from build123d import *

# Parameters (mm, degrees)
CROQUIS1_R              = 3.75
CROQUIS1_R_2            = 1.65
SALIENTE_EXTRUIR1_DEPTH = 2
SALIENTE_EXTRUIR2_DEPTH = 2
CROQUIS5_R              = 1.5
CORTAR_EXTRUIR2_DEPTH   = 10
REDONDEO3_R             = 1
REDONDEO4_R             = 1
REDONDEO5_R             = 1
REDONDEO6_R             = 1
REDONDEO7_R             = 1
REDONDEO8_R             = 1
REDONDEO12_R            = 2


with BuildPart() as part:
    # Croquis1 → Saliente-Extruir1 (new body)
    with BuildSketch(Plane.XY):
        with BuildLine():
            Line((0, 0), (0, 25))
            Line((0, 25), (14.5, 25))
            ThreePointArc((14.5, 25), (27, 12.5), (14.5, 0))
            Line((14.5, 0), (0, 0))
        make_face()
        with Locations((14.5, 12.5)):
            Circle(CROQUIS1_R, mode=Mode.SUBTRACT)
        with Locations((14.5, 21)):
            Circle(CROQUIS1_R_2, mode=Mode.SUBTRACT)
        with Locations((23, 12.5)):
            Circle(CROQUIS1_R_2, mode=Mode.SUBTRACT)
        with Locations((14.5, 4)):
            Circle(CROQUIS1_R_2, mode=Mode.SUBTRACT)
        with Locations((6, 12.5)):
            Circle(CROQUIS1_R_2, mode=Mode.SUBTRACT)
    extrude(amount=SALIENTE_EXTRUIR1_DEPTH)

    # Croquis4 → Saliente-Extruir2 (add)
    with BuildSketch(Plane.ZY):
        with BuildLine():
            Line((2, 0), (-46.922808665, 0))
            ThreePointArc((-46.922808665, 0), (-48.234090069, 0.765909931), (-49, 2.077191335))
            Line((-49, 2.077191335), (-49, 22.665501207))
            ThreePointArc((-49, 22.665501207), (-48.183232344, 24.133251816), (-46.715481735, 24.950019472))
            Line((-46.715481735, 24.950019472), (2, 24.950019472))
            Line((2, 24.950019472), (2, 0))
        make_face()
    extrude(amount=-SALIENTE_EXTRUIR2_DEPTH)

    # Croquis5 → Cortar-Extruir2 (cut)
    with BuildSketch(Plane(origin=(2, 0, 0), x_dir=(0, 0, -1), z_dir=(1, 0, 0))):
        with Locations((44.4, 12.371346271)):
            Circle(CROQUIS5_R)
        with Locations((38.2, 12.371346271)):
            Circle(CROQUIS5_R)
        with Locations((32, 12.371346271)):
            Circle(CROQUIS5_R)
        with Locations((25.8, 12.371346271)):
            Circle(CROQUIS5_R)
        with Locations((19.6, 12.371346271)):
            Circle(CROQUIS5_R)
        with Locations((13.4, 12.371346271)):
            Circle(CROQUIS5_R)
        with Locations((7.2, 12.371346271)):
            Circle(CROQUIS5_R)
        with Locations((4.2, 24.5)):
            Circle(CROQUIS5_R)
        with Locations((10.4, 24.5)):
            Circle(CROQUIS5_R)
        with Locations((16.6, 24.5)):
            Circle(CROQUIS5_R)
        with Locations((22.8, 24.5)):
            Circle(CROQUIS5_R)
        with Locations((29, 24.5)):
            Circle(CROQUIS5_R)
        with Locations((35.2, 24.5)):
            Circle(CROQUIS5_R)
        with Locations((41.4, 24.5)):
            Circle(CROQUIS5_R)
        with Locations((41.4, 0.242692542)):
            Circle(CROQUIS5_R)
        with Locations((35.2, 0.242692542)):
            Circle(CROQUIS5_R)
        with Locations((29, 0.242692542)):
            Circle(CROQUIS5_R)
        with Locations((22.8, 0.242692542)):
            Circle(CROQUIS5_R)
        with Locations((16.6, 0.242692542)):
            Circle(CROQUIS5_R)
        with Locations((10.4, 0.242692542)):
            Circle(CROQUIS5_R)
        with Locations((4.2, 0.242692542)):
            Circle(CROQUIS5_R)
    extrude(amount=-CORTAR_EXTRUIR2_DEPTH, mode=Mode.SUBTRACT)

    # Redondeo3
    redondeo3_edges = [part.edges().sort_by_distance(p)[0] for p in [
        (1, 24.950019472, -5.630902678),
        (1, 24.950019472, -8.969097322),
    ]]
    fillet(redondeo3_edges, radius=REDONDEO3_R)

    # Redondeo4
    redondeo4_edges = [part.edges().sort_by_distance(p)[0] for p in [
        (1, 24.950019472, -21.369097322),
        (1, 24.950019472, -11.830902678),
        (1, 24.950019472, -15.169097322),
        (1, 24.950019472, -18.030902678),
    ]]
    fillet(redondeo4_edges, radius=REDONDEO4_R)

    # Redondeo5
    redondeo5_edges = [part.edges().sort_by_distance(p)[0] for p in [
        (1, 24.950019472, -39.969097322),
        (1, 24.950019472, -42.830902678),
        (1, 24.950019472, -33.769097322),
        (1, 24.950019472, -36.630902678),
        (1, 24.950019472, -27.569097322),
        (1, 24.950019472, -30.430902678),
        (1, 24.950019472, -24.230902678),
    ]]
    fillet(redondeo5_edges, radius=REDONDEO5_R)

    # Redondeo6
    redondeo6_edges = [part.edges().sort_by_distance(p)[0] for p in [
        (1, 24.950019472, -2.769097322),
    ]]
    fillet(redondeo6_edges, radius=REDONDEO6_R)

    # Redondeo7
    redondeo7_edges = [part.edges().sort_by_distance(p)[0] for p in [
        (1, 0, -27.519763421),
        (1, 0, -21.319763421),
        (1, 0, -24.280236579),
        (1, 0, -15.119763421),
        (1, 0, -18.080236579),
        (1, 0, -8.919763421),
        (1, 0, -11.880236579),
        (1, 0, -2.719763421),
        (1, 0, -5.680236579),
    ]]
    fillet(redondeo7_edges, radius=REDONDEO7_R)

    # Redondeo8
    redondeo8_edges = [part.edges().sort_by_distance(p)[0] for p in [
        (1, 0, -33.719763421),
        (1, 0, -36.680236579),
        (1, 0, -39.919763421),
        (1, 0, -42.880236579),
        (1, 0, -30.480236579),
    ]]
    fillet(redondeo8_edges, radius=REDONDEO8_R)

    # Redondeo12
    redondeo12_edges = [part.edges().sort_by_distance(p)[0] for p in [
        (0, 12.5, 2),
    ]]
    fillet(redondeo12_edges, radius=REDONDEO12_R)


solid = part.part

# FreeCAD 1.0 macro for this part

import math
import FreeCAD as App
import Part
import Sketcher


def edges_at(feature, points):
    """Names of the edges that pass closest to the given points."""
    edges = feature.Shape.Edges
    near = lambda p: min(range(len(edges)), key=lambda i: edges[i].distToShape(Part.Vertex(*p))[0])
    return sorted({f"Edge{near(p) + 1}" for p in points})

doc = App.newDocument("Part")
body = doc.addObject("PartDesign::Body", "Body")

# Sketch on XY plane
sketch1 = body.newObject("Sketcher::SketchObject", "Sketch")
sketch1.AttachmentSupport = (doc.getObject("XY_Plane"), [""])
sketch1.MapMode = "FlatFace"
sketch1.addGeometry([
    Part.LineSegment(App.Vector(0, 25, 0), App.Vector(0, 0, 0)),  # 0
    Part.LineSegment(App.Vector(0, 0, 0), App.Vector(14.5, 0, 0)),  # 1
    Part.ArcOfCircle(Part.Circle(App.Vector(14.5, 12.5, 0), App.Vector(0, 0, 1), 12.5), math.radians(-90), math.radians(90)),  # 2
    Part.LineSegment(App.Vector(14.5, 25, 0), App.Vector(0, 25, 0)),  # 3
    Part.Circle(App.Vector(14.5, 4, 0), App.Vector(0, 0, 1), 1.6),  # 4
    Part.Circle(App.Vector(23, 12.5, 0), App.Vector(0, 0, 1), 1.6),  # 5
    Part.Circle(App.Vector(14.5, 12.5, 0), App.Vector(0, 0, 1), 3.8),  # 6
    Part.Circle(App.Vector(6, 12.5, 0), App.Vector(0, 0, 1), 1.6),  # 7
    Part.Circle(App.Vector(14.5, 21, 0), App.Vector(0, 0, 1), 1.6),  # 8
], False)
sketch1.addConstraint([
    Sketcher.Constraint("Coincident", 0, 2, 1, 1),
    Sketcher.Constraint("Tangent", 1, 2, 2, 1),
    Sketcher.Constraint("Tangent", 2, 2, 3, 1),
    Sketcher.Constraint("Coincident", 3, 2, 0, 1),
    Sketcher.Constraint("Vertical", 0),
    Sketcher.Constraint("Horizontal", 1),
    Sketcher.Constraint("Horizontal", 3),
    Sketcher.Constraint("Coincident", 0, 2, -1, 1),
    Sketcher.Constraint("Coincident", 6, 3, 2, 3),
    Sketcher.Constraint("Equal", 4, 5),
    Sketcher.Constraint("Equal", 5, 7),
    Sketcher.Constraint("Equal", 7, 8),
    Sketcher.Constraint("Horizontal", 2, 3, 5, 3),
    Sketcher.Constraint("Horizontal", 6, 3, 7, 3),
    Sketcher.Constraint("Vertical", 2, 3, 4, 3),
    Sketcher.Constraint("Vertical", 6, 3, 8, 3),
    Sketcher.Constraint("Diameter", 4, 3.3),
    Sketcher.Constraint("Diameter", 6, 7.5),
    Sketcher.Constraint("Radius", 2, 12.5),
    Sketcher.Constraint("DistanceX", 1, 1, 1, 2, 14.5),
    Sketcher.Constraint("DistanceY", -1, 1, 4, 3, 4.0),
    Sketcher.Constraint("DistanceX", -1, 1, 5, 3, 23.0),
    Sketcher.Constraint("DistanceX", -1, 1, 7, 3, 6.0),
    Sketcher.Constraint("DistanceY", -1, 1, 8, 3, 21.0),
])
pad1 = body.newObject("PartDesign::Pad", "Pad")
pad1.Profile = sketch1
pad1.Length = 2

# Sketch on YZ plane
sketch2 = body.newObject("Sketcher::SketchObject", "Sketch001")
sketch2.AttachmentSupport = (doc.getObject("YZ_Plane"), [""])
sketch2.MapMode = "FlatFace"
sketch2.addGeometry([
    Part.LineSegment(App.Vector(0, -46.9, 0), App.Vector(0, 2, 0)),  # 0
    Part.LineSegment(App.Vector(0, 2, 0), App.Vector(25, 2, 0)),  # 1
    Part.LineSegment(App.Vector(25, 2, 0), App.Vector(25, -46.7, 0)),  # 2
    Part.ArcOfCircle(Part.Circle(App.Vector(22, -46, 0), App.Vector(0, 0, 1), 3.1), math.radians(-77), math.radians(-13)),  # 3
    Part.LineSegment(App.Vector(22.7, -49, 0), App.Vector(2.1, -49, 0)),  # 4
    Part.ArcOfCircle(Part.Circle(App.Vector(2.9, -46.1, 0), App.Vector(0, 0, 1), 3), math.radians(-164), math.radians(-106)),  # 5
], False)
sketch2.addConstraint([
    Sketcher.Constraint("Coincident", 0, 2, 1, 1),
    Sketcher.Constraint("Coincident", 1, 2, 2, 1),
    Sketcher.Constraint("Coincident", 2, 2, 3, 2),
    Sketcher.Constraint("Coincident", 3, 1, 4, 1),
    Sketcher.Constraint("Coincident", 4, 2, 5, 2),
    Sketcher.Constraint("Coincident", 5, 1, 0, 1),
    Sketcher.Constraint("Vertical", 0),
    Sketcher.Constraint("Horizontal", 1),
    Sketcher.Constraint("Vertical", 2),
    Sketcher.Constraint("Horizontal", 4),
    Sketcher.Constraint("PointOnObject", 0, 2, -2),
    Sketcher.Constraint("DistanceY", -1, 1, 0, 2, 2.0),
    Sketcher.Constraint("DistanceY", 3, 1, -1, 1, 49.0),
    Sketcher.Constraint("Radius", 3, 3.064645),
    Sketcher.Constraint("Radius", 5, 2.989967),
    Sketcher.Constraint("DistanceX", 1, 1, 1, 2, 24.950019),
    Sketcher.Constraint("DistanceX", 4, 2, 4, 1, 20.58831),
    Sketcher.Constraint("DistanceY", 0, 1, 0, 2, 48.922809),
    Sketcher.Constraint("DistanceY", 2, 2, 2, 1, 48.715482),
    Sketcher.Constraint("DistanceY", 3, 3, -1, 1, 46.016201),
])
pad2 = body.newObject("PartDesign::Pad", "Pad001")
pad2.Profile = sketch2
pad2.Length = 2

# Sketch on YZ plane
sketch3 = body.newObject("Sketcher::SketchObject", "Sketch002")
sketch3.AttachmentSupport = (doc.getObject("YZ_Plane"), [""])
sketch3.MapMode = "FlatFace"
sketch3.AttachmentOffset = App.Placement(App.Vector(0, 0, 2), App.Rotation())
sketch3.addGeometry([
    Part.Circle(App.Vector(12.4, -44.4, 0), App.Vector(0, 0, 1), 1.5),  # 0
    Part.Circle(App.Vector(12.4, -38.2, 0), App.Vector(0, 0, 1), 1.5),  # 1
    Part.Circle(App.Vector(12.4, -32, 0), App.Vector(0, 0, 1), 1.5),  # 2
    Part.Circle(App.Vector(12.4, -25.8, 0), App.Vector(0, 0, 1), 1.5),  # 3
    Part.Circle(App.Vector(12.4, -19.6, 0), App.Vector(0, 0, 1), 1.5),  # 4
    Part.Circle(App.Vector(12.4, -13.4, 0), App.Vector(0, 0, 1), 1.5),  # 5
    Part.Circle(App.Vector(12.4, -7.2, 0), App.Vector(0, 0, 1), 1.5),  # 6
    Part.Circle(App.Vector(24.5, -4.2, 0), App.Vector(0, 0, 1), 1.5),  # 7
    Part.Circle(App.Vector(24.5, -10.4, 0), App.Vector(0, 0, 1), 1.5),  # 8
    Part.Circle(App.Vector(24.5, -16.6, 0), App.Vector(0, 0, 1), 1.5),  # 9
    Part.Circle(App.Vector(24.5, -22.8, 0), App.Vector(0, 0, 1), 1.5),  # 10
    Part.Circle(App.Vector(24.5, -29, 0), App.Vector(0, 0, 1), 1.5),  # 11
    Part.Circle(App.Vector(24.5, -35.2, 0), App.Vector(0, 0, 1), 1.5),  # 12
    Part.Circle(App.Vector(24.5, -41.4, 0), App.Vector(0, 0, 1), 1.5),  # 13
    Part.Circle(App.Vector(0.2, -41.4, 0), App.Vector(0, 0, 1), 1.5),  # 14
    Part.Circle(App.Vector(0.2, -35.2, 0), App.Vector(0, 0, 1), 1.5),  # 15
    Part.Circle(App.Vector(0.2, -29, 0), App.Vector(0, 0, 1), 1.5),  # 16
    Part.Circle(App.Vector(0.2, -22.8, 0), App.Vector(0, 0, 1), 1.5),  # 17
    Part.Circle(App.Vector(0.2, -16.6, 0), App.Vector(0, 0, 1), 1.5),  # 18
    Part.Circle(App.Vector(0.2, -10.4, 0), App.Vector(0, 0, 1), 1.5),  # 19
    Part.Circle(App.Vector(0.2, -4.2, 0), App.Vector(0, 0, 1), 1.5),  # 20
], False)
sketch3.addConstraint([
    Sketcher.Constraint("Equal", 0, 1),
    Sketcher.Constraint("Equal", 1, 2),
    Sketcher.Constraint("Equal", 2, 3),
    Sketcher.Constraint("Equal", 3, 4),
    Sketcher.Constraint("Equal", 4, 5),
    Sketcher.Constraint("Equal", 5, 6),
    Sketcher.Constraint("Equal", 6, 7),
    Sketcher.Constraint("Equal", 7, 8),
    Sketcher.Constraint("Equal", 8, 9),
    Sketcher.Constraint("Equal", 9, 10),
    Sketcher.Constraint("Equal", 10, 11),
    Sketcher.Constraint("Equal", 11, 12),
    Sketcher.Constraint("Equal", 12, 13),
    Sketcher.Constraint("Equal", 13, 14),
    Sketcher.Constraint("Equal", 14, 15),
    Sketcher.Constraint("Equal", 15, 16),
    Sketcher.Constraint("Equal", 16, 17),
    Sketcher.Constraint("Equal", 17, 18),
    Sketcher.Constraint("Equal", 18, 19),
    Sketcher.Constraint("Equal", 19, 20),
    Sketcher.Constraint("Horizontal", 13, 3, 14, 3),
    Sketcher.Constraint("Horizontal", 12, 3, 15, 3),
    Sketcher.Constraint("Horizontal", 11, 3, 16, 3),
    Sketcher.Constraint("Horizontal", 10, 3, 17, 3),
    Sketcher.Constraint("Horizontal", 9, 3, 18, 3),
    Sketcher.Constraint("Horizontal", 8, 3, 19, 3),
    Sketcher.Constraint("Horizontal", 7, 3, 20, 3),
    Sketcher.Constraint("Vertical", 0, 3, 1, 3),
    Sketcher.Constraint("Vertical", 1, 3, 2, 3),
    Sketcher.Constraint("Vertical", 2, 3, 3, 3),
    Sketcher.Constraint("Vertical", 3, 3, 4, 3),
    Sketcher.Constraint("Vertical", 4, 3, 5, 3),
    Sketcher.Constraint("Vertical", 5, 3, 6, 3),
    Sketcher.Constraint("Vertical", 7, 3, 8, 3),
    Sketcher.Constraint("Vertical", 8, 3, 9, 3),
    Sketcher.Constraint("Vertical", 9, 3, 10, 3),
    Sketcher.Constraint("Vertical", 10, 3, 11, 3),
    Sketcher.Constraint("Vertical", 11, 3, 12, 3),
    Sketcher.Constraint("Vertical", 12, 3, 13, 3),
    Sketcher.Constraint("Vertical", 14, 3, 15, 3),
    Sketcher.Constraint("Vertical", 15, 3, 16, 3),
    Sketcher.Constraint("Vertical", 16, 3, 17, 3),
    Sketcher.Constraint("Vertical", 17, 3, 18, 3),
    Sketcher.Constraint("Vertical", 18, 3, 19, 3),
    Sketcher.Constraint("Vertical", 19, 3, 20, 3),
    Sketcher.Constraint("Diameter", 0, 3.0),
    Sketcher.Constraint("DistanceY", 2, 3, -1, 1, 32.0),
    Sketcher.Constraint("DistanceY", 11, 3, -1, 1, 29.0),
    Sketcher.Constraint("DistanceY", 0, 3, 5, 3, 31.0),
    Sketcher.Constraint("DistanceY", 1, 3, 6, 3, 31.0),
    Sketcher.Constraint("DistanceY", 6, 3, 7, 3, 3.0),
    Sketcher.Constraint("DistanceY", 5, 3, 8, 3, 3.0),
    Sketcher.Constraint("DistanceY", 4, 3, 9, 3, 3.0),
    Sketcher.Constraint("DistanceY", 3, 3, 10, 3, 3.0),
    Sketcher.Constraint("DistanceY", 1, 3, 12, 3, 3.0),
    Sketcher.Constraint("DistanceY", 0, 3, 13, 3, 3.0),
    Sketcher.Constraint("DistanceY", 0, 3, -1, 1, 44.4),
    Sketcher.Constraint("DistanceY", 1, 3, -1, 1, 38.2),
    Sketcher.Constraint("DistanceY", 3, 3, -1, 1, 25.8),
    Sketcher.Constraint("DistanceY", 4, 3, -1, 1, 19.6),
    Sketcher.Constraint("DistanceX", -1, 1, 7, 3, 24.5),
    Sketcher.Constraint("DistanceX", -1, 1, 0, 3, 12.371346),
    Sketcher.Constraint("DistanceX", -1, 1, 14, 3, 0.242693),
])
pocket1 = body.newObject("PartDesign::Pocket", "Pocket")
pocket1.Profile = sketch3
pocket1.Length = 10
doc.recompute()

fillet = body.newObject("PartDesign::Fillet", "Fillet")
fillet.Base = (pocket1, edges_at(pocket1, [(1, 24.95, -5.631), (1, 24.95, -8.969)]))
fillet.Radius = 1
doc.recompute()

fillet2 = body.newObject("PartDesign::Fillet", "Fillet001")
fillet2.Base = (fillet, edges_at(fillet, [
    (1, 24.95, -21.369),
    (1, 24.95, -11.831),
    (1, 24.95, -15.169),
    (1, 24.95, -18.031),
]))
fillet2.Radius = 1
doc.recompute()

fillet3 = body.newObject("PartDesign::Fillet", "Fillet002")
fillet3.Base = (fillet2, edges_at(fillet2, [
    (1, 24.95, -39.969),
    (1, 24.95, -42.831),
    (1, 24.95, -33.769),
    (1, 24.95, -36.631),
    (1, 24.95, -27.569),
    (1, 24.95, -30.431),
    (1, 24.95, -24.231),
]))
fillet3.Radius = 1
doc.recompute()

fillet4 = body.newObject("PartDesign::Fillet", "Fillet003")
fillet4.Base = (fillet3, edges_at(fillet3, [(1, 24.95, -2.769)]))
fillet4.Radius = 1
doc.recompute()

fillet5 = body.newObject("PartDesign::Fillet", "Fillet004")
fillet5.Base = (fillet4, edges_at(fillet4, [
    (1, 0, -27.52),
    (1, 0, -21.32),
    (1, 0, -24.28),
    (1, 0, -15.12),
    (1, 0, -18.08),
    (1, 0, -8.92),
    (1, 0, -11.88),
    (1, 0, -2.72),
    (1, 0, -5.68),
]))
fillet5.Radius = 1
doc.recompute()

fillet6 = body.newObject("PartDesign::Fillet", "Fillet005")
fillet6.Base = (fillet5, edges_at(fillet5, [
    (1, 0, -33.72),
    (1, 0, -36.68),
    (1, 0, -39.92),
    (1, 0, -42.88),
    (1, 0, -30.48),
]))
fillet6.Radius = 1
doc.recompute()

fillet7 = body.newObject("PartDesign::Fillet", "Fillet006")
fillet7.Base = (fillet6, edges_at(fillet6, [(0, 12.5, 2)]))
fillet7.Radius = 2

doc.recompute()
